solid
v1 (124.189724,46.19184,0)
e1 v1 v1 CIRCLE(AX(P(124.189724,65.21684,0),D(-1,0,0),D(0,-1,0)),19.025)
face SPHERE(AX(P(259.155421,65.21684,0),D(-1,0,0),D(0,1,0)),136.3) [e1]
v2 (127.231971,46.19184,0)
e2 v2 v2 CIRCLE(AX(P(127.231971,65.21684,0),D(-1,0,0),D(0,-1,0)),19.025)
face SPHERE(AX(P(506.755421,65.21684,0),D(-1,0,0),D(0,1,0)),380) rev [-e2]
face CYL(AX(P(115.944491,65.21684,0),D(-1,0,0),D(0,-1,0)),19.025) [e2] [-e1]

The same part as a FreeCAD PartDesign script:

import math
import FreeCAD as App
import Part
import Sketcher
from FreeCAD import Vector
Q = App.Units.Quantity

doc = App.newDocument("Part")
body = doc.addObject("PartDesign::Body", "Body")

# Sketch on XY plane
sketch1 = body.newObject("Sketcher::SketchObject", "Sketch")
sketch1.AttachmentSupport = (doc.getObject("XY_Plane"), [""])
sketch1.MapMode = "FlatFace"
sketch1.addGeometry([
    Part.LineSegment(Vector(127.2, 84.2, 0), Vector(124.2, 84.2, 0)),
    Part.ArcOfCircle(Part.Circle(Vector(259.2, 65.2, 0), Vector(0, 0, 1), 136.3), math.radians(171.98), math.radians(180)),
    Part.LineSegment(Vector(122.9, 65.2, 0), Vector(126.8, 65.2, 0)),
    Part.ArcOfCircle(Part.Circle(Vector(506.8, 65.2, 0), Vector(0, 0, 1), 380), math.radians(177.13), math.radians(180)),
], False)
sketch1.addGeometry(Part.LineSegment(Vector(122.9, 65.2, 0), Vector(506.8, 65.2, 0)), True)  # axis
sketch1.addConstraint([
    Sketcher.Constraint("Coincident", 0, 2, 1, 1),
    Sketcher.Constraint("Coincident", 1, 2, 2, 1),
    Sketcher.Constraint("Coincident", 2, 2, 3, 2),
    Sketcher.Constraint("Coincident", 3, 1, 0, 1),
    Sketcher.Constraint("Horizontal", 0),
    Sketcher.Constraint("Horizontal", 2),
    Sketcher.Constraint("Horizontal", 4),
    Sketcher.Constraint("Coincident", 4, 1, 1, 2),
    Sketcher.Constraint("Coincident", 4, 2, 3, 3),
    Sketcher.Constraint("Horizontal", 1, 3, 3, 3),
    Sketcher.Constraint("Radius", 3, Q("380 mm")),
    Sketcher.Constraint("Radius", 1, Q("136.3 mm")),
    Sketcher.Constraint("DistanceX", 2, 1, 2, 2, Q("3.9 mm")),
    Sketcher.Constraint("DistanceY", 1, 3, 0, 2, Q("19.025 mm")),
    Sketcher.Constraint("DistanceX", -1, 1, 1, 3, Q("259.155421 mm")),
    Sketcher.Constraint("DistanceY", -1, 1, 1, 3, Q("65.21684 mm")),
])
revolution = body.newObject("PartDesign::Revolution", "Revolution")
revolution.Profile = sketch1
revolution.ReferenceAxis = (sketch1, ["Axis0"])
revolution.Angle = 360

doc.recompute()
